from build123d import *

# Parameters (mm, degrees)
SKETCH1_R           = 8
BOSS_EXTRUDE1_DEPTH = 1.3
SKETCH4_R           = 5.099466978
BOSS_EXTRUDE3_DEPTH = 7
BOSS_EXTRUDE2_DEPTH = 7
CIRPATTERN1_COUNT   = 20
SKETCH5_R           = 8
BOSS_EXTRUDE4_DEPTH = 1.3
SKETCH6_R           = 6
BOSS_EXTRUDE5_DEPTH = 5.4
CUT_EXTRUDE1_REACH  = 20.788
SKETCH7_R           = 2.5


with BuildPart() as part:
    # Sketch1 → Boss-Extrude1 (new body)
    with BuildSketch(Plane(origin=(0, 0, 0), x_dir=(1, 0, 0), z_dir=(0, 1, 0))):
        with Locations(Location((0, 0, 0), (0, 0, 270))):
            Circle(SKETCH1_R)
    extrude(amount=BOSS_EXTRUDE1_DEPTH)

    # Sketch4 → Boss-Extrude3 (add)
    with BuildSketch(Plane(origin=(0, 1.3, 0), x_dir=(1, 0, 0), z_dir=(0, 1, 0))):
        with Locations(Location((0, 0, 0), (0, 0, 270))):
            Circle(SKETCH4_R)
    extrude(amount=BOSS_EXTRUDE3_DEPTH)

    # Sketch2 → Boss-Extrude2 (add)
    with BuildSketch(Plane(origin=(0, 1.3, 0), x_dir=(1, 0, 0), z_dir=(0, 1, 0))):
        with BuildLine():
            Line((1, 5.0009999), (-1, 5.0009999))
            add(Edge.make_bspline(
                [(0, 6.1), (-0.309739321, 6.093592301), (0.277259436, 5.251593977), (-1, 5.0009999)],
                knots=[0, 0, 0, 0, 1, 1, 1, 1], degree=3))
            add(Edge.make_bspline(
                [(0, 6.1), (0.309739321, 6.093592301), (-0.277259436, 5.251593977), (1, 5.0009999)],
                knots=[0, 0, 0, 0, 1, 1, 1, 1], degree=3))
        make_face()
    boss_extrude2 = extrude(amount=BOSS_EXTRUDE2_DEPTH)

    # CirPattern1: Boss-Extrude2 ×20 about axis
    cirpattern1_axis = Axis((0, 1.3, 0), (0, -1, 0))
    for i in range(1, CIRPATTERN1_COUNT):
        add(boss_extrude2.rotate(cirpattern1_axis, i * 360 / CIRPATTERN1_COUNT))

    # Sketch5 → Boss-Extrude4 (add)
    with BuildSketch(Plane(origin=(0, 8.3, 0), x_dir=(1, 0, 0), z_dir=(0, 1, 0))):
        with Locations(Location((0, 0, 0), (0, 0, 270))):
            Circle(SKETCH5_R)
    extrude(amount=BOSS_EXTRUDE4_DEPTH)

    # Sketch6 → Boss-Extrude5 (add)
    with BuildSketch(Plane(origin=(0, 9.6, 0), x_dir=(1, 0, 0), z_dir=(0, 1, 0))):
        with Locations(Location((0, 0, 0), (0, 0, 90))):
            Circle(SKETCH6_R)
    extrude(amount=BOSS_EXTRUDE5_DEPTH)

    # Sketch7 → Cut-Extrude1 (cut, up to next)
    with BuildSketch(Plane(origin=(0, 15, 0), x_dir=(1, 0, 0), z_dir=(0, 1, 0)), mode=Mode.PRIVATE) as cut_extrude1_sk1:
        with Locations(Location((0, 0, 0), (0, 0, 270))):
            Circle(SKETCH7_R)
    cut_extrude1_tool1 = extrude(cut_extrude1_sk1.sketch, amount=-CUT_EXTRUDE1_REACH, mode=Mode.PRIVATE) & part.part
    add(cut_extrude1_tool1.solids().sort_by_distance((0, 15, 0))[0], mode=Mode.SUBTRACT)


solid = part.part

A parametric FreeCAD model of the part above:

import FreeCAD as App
import Part
import Sketcher

V = App.Vector
Q = App.Units.Quantity

doc = App.newDocument("Part")
params = doc.addObject("Spreadsheet::Sheet", "Params")
for row, (alias, value) in enumerate([
    ("sketch1_diameter", "16 mm"),
    ("pad1_length", "1.3 mm"),
    ("pad2_length", "7 mm"),
    ("pad3_length", "7 mm"),
    ("sketch4_diameter", "16 mm"),
    ("pad4_length", "1.3 mm"),
    ("sketch5_diameter", "12 mm"),
    ("pad5_length", "5.4 mm"),
    ("sketch6_diameter", "5 mm"),
], start=1):
    params.set(f"A{row}", alias)
    params.set(f"B{row}", "=" + value)
    params.setAlias(f"B{row}", alias)

body = doc.addObject("PartDesign::Body", "Body")

sketch1 = doc.addObject("Sketcher::SketchObject", "Sketch")
body.addObject(sketch1)
sketch1.AttachmentSupport = (doc.XZ_Plane, [""])
sketch1.MapMode = "FlatFace"
sketch1.addGeometry(Part.Circle(V(0, 0, 0), V(0, 0, 1), 8), False)
sketch1.addConstraint(Sketcher.Constraint("Coincident", 0, 3, -1, 1))
sketch1.addConstraint(Sketcher.Constraint("Diameter", 0, Q("16 mm")))
sketch1.setExpression("Constraints[1]", "Params.sketch1_diameter")
pad1 = doc.addObject("PartDesign::Pad", "Pad")
body.addObject(pad1)
pad1.Profile = sketch1
pad1.setExpression("Length", "Params.pad1_length")
pad1.Reversed = True

sketch2 = doc.addObject("Sketcher::SketchObject", "Sketch001")
body.addObject(sketch2)
sketch2.AttachmentSupport = (doc.XZ_Plane, [""])
sketch2.MapMode = "FlatFace"
sketch2.AttachmentOffset = App.Placement(V(0, 0, -1.3), App.Rotation())
sketch2.addGeometry(Part.Circle(V(0, 0, 0), V(0, 0, 1), 5.099467), False)
sketch2.addConstraint(Sketcher.Constraint("Coincident", 0, 3, -1, 1))
sketch2.addConstraint(Sketcher.Constraint("Diameter", 0, Q("10.198934 mm")))
pad2 = doc.addObject("PartDesign::Pad", "Pad001")
body.addObject(pad2)
pad2.Profile = sketch2
pad2.setExpression("Length", "Params.pad2_length")
pad2.Reversed = True

sketch3 = doc.addObject("Sketcher::SketchObject", "Sketch002")
body.addObject(sketch3)
sketch3.AttachmentSupport = (doc.XZ_Plane, [""])
sketch3.MapMode = "FlatFace"
sketch3.AttachmentOffset = App.Placement(V(0, 0, -1.3), App.Rotation())
sketch3.addGeometry(Part.LineSegment(V(-1, -5.001, 0), V(1, -5.001, 0)), False)
sketch3.addGeometry(Part.BSplineCurve([V(0, -6.1, 0), V(0.309739, -6.093592, 0), V(-0.277259, -5.251594, 0), V(1, -5.001, 0)], [4, 4], [0, 1], False, 3, [1, 1, 1, 1], False), False)
sketch3.addGeometry(Part.BSplineCurve([V(0, -6.1, 0), V(-0.309739, -6.093592, 0), V(0.277259, -5.251594, 0), V(-1, -5.001, 0)], [4, 4], [0, 1], False, 3, [1, 1, 1, 1], False), False)
sketch3.addConstraint(Sketcher.Constraint("Block", 1))
sketch3.addConstraint(Sketcher.Constraint("Block", 2))
sketch3.addConstraint(Sketcher.Constraint("Coincident", 0, 2, 1, 2))
sketch3.addConstraint(Sketcher.Constraint("Coincident", 2, 2, 0, 1))
pad3 = doc.addObject("PartDesign::Pad", "Pad002")
body.addObject(pad3)
pad3.Profile = sketch3
pad3.setExpression("Length", "Params.pad3_length")
pad3.Reversed = True
doc.recompute()

polarpattern = doc.addObject("PartDesign::PolarPattern", "PolarPattern")
body.addObject(polarpattern)
polarpattern.Originals = [pad3]
polarpattern.Axis = (doc.Y_Axis, [""])
polarpattern.Angle = 360
polarpattern.Occurrences = 20
body.Tip = polarpattern

sketch4 = doc.addObject("Sketcher::SketchObject", "Sketch003")
body.addObject(sketch4)
sketch4.AttachmentSupport = (doc.XZ_Plane, [""])
sketch4.MapMode = "FlatFace"
sketch4.AttachmentOffset = App.Placement(V(0, 0, -8.3), App.Rotation())
sketch4.addGeometry(Part.Circle(V(0, 0, 0), V(0, 0, 1), 8), False)
sketch4.addConstraint(Sketcher.Constraint("Coincident", 0, 3, -1, 1))
sketch4.addConstraint(Sketcher.Constraint("Diameter", 0, Q("16 mm")))
sketch4.setExpression("Constraints[1]", "Params.sketch4_diameter")
pad4 = doc.addObject("PartDesign::Pad", "Pad003")
body.addObject(pad4)
pad4.Profile = sketch4
pad4.setExpression("Length", "Params.pad4_length")
pad4.Reversed = True

sketch5 = doc.addObject("Sketcher::SketchObject", "Sketch004")
body.addObject(sketch5)
sketch5.AttachmentSupport = (doc.XZ_Plane, [""])
sketch5.MapMode = "FlatFace"
sketch5.AttachmentOffset = App.Placement(V(0, 0, -9.6), App.Rotation())
sketch5.addGeometry(Part.Circle(V(0, 0, 0), V(0, 0, 1), 6), False)
sketch5.addConstraint(Sketcher.Constraint("Coincident", 0, 3, -1, 1))
sketch5.addConstraint(Sketcher.Constraint("Diameter", 0, Q("12 mm")))
sketch5.setExpression("Constraints[1]", "Params.sketch5_diameter")
pad5 = doc.addObject("PartDesign::Pad", "Pad004")
body.addObject(pad5)
pad5.Profile = sketch5
pad5.setExpression("Length", "Params.pad5_length")
pad5.Reversed = True

sketch6 = doc.addObject("Sketcher::SketchObject", "Sketch005")
body.addObject(sketch6)
sketch6.AttachmentSupport = (doc.XZ_Plane, [""])
sketch6.MapMode = "FlatFace"
sketch6.AttachmentOffset = App.Placement(V(0, 0, -15), App.Rotation())
sketch6.addGeometry(Part.Circle(V(0, 0, 0), V(0, 0, 1), 2.5), False)
sketch6.addConstraint(Sketcher.Constraint("Coincident", 0, 3, -1, 1))
sketch6.addConstraint(Sketcher.Constraint("Diameter", 0, Q("5 mm")))
sketch6.setExpression("Constraints[1]", "Params.sketch6_diameter")
pocket1 = doc.addObject("PartDesign::Pocket", "Pocket")
body.addObject(pocket1)
pocket1.Profile = sketch6
pocket1.Type = "UpToFirst"
pocket1.Reversed = True

doc.recompute()
